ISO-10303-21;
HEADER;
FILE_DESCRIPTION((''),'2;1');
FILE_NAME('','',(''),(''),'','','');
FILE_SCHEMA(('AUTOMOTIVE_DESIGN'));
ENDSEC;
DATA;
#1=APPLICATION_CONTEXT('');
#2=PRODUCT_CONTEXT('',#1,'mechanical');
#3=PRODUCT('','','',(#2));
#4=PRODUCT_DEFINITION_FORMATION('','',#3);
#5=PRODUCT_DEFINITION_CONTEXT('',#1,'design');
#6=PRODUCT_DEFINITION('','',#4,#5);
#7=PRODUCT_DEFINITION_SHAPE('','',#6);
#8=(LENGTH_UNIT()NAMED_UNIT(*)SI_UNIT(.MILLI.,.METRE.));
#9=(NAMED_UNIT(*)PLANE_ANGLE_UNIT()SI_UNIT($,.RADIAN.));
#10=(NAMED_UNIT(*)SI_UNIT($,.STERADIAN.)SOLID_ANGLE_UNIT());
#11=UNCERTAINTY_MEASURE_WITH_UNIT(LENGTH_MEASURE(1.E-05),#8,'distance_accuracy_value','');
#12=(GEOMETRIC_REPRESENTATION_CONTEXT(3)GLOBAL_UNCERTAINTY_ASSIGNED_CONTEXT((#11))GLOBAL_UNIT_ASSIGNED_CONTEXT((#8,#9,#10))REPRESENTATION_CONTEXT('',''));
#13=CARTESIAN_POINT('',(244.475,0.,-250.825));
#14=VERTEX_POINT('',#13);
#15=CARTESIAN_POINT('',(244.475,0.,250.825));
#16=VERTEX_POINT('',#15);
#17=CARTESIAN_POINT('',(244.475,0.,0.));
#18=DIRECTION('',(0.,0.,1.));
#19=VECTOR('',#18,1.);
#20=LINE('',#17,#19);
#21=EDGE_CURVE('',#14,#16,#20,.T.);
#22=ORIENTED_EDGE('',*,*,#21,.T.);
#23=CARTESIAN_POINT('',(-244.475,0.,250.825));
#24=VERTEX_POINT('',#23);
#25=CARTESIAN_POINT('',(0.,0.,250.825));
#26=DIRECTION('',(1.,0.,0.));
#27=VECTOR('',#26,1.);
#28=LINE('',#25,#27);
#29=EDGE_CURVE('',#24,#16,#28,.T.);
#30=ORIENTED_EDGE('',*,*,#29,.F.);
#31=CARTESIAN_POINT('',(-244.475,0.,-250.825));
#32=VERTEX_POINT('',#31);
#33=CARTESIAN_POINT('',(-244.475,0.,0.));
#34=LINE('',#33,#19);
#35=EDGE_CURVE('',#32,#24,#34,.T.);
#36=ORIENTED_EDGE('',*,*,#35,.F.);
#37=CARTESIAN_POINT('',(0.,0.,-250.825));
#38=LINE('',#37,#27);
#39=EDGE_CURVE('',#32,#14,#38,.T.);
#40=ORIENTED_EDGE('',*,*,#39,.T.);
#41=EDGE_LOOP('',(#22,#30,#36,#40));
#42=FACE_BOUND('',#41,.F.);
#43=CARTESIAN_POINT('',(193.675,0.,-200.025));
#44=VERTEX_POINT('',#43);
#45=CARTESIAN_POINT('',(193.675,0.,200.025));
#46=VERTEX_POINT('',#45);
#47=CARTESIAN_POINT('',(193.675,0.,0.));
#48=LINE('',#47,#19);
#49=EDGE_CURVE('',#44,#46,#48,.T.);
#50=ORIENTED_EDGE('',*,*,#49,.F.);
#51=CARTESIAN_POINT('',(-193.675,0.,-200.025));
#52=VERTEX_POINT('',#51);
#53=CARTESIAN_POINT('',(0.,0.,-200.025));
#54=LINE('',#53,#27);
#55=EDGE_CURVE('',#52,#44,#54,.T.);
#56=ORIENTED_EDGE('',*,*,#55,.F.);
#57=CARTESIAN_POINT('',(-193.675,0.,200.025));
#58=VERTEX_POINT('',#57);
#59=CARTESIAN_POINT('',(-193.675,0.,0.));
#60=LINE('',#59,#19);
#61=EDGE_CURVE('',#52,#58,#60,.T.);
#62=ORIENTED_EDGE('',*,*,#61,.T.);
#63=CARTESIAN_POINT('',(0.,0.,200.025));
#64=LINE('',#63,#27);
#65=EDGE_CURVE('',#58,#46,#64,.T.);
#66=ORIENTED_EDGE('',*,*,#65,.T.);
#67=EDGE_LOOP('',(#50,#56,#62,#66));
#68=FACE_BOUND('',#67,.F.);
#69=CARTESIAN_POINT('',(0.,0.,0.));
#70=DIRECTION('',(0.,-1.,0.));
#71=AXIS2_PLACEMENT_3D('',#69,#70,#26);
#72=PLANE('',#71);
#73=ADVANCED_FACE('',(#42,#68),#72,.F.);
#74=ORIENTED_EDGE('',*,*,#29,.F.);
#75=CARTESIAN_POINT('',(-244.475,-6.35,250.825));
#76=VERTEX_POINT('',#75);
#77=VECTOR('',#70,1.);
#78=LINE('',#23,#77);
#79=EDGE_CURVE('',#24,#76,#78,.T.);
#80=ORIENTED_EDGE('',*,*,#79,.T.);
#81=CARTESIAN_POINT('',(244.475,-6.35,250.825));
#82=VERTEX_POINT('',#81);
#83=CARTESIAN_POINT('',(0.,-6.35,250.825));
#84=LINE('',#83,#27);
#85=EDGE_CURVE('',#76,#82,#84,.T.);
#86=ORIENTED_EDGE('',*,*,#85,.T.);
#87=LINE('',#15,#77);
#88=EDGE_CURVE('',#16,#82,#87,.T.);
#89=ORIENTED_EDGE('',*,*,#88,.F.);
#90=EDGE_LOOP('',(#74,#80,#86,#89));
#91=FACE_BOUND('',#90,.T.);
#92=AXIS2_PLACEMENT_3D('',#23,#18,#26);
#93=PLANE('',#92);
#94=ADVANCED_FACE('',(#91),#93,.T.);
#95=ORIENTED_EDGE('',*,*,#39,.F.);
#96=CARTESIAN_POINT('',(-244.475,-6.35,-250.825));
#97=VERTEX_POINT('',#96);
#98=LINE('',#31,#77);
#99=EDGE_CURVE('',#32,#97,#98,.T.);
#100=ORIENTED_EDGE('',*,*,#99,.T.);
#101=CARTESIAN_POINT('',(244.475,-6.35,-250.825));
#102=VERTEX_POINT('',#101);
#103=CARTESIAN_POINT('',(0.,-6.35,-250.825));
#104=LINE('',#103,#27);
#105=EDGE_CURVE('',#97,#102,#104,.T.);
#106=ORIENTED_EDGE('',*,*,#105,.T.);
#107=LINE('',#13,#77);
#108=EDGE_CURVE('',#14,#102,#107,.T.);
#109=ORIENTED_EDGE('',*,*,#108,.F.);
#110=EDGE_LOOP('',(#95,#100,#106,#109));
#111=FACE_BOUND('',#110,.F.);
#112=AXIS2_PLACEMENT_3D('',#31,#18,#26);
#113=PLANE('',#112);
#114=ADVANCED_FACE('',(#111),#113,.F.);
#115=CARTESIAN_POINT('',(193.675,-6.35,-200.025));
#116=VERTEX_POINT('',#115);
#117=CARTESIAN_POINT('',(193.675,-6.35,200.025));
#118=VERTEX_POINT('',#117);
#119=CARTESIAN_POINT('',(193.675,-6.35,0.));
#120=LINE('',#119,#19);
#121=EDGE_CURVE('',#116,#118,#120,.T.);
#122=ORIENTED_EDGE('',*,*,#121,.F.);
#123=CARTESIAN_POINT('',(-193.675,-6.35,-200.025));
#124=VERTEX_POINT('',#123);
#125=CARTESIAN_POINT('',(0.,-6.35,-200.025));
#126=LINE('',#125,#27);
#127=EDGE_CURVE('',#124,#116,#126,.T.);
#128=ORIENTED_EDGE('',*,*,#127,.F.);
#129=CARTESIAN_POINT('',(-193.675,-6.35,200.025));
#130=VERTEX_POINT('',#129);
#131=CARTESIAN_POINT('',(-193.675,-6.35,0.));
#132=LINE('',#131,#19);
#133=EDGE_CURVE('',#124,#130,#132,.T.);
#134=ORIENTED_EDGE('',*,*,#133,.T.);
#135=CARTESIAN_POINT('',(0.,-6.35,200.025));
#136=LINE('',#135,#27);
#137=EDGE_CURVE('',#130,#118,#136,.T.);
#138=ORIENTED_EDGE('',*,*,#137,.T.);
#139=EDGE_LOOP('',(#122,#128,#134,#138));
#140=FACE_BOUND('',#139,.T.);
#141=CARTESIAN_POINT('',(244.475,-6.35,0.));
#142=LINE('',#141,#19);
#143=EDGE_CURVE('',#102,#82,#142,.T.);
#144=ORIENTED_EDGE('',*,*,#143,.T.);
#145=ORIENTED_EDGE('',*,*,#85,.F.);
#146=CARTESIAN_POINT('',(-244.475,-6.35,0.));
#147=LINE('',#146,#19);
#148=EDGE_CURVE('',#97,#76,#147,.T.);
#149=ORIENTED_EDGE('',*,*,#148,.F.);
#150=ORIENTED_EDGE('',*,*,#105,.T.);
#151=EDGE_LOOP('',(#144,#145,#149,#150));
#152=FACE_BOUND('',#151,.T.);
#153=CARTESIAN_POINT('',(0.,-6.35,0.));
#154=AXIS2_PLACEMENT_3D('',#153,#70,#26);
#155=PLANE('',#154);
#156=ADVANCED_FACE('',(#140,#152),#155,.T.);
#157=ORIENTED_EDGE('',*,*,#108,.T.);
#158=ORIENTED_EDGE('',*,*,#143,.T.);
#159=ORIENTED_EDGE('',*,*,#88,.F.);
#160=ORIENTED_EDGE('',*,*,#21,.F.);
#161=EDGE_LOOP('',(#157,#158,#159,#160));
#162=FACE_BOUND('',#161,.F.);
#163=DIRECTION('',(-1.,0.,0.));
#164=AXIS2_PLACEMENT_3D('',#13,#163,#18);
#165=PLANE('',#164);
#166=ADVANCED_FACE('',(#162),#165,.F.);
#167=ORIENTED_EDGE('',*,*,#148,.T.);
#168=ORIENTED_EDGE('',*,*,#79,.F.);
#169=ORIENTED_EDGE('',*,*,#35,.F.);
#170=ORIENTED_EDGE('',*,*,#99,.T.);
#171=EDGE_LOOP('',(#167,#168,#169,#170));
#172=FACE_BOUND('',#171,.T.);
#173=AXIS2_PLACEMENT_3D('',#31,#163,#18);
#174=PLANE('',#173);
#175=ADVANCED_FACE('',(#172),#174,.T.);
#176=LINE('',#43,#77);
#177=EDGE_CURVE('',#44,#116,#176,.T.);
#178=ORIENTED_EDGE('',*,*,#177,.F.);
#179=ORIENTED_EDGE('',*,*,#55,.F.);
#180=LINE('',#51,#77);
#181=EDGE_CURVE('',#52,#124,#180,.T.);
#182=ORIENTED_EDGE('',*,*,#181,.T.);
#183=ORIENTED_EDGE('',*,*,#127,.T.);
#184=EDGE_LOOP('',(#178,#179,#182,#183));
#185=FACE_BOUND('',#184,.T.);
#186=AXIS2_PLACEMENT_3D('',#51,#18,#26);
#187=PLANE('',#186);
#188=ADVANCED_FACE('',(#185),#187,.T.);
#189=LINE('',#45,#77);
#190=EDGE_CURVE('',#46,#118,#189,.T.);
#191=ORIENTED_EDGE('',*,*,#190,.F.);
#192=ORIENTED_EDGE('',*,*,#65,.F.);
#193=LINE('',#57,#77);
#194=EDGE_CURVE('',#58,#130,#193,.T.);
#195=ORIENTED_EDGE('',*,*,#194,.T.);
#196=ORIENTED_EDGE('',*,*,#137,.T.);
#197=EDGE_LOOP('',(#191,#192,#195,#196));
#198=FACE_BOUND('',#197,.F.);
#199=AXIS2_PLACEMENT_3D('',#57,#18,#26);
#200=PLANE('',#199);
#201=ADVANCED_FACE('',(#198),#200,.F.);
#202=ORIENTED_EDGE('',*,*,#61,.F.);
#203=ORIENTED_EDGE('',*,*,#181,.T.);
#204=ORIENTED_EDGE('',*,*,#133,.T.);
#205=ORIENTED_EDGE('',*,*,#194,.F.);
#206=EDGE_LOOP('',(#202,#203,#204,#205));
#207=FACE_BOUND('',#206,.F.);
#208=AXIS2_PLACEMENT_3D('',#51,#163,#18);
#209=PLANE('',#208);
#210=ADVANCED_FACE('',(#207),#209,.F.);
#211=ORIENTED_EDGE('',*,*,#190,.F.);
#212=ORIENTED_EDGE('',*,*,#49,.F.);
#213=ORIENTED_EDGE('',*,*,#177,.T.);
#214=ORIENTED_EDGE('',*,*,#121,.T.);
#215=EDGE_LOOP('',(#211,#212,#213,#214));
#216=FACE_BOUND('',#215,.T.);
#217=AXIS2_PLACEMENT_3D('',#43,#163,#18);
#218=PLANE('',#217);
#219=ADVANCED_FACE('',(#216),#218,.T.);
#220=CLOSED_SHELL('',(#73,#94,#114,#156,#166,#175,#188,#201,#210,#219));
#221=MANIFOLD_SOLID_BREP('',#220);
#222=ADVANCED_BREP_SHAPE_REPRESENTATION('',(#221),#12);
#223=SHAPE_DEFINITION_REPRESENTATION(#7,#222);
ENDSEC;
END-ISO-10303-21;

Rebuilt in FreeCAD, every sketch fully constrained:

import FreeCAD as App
import Part
import Sketcher

V = App.Vector
Q = App.Units.Quantity

doc = App.newDocument("Part")
body = doc.addObject("PartDesign::Body", "Body")

# Sketch on XZ plane
sketch1 = body.newObject("Sketcher::SketchObject", "Sketch")
sketch1.AttachmentSupport = (doc.getObject("XZ_Plane"), [""])
sketch1.MapMode = "FlatFace"
sketch1.addGeometry(Part.LineSegment(V(-244.475, 250.825, 0), V(-244.475, -250.825, 0)), False)
sketch1.addGeometry(Part.LineSegment(V(-244.475, -250.825, 0), V(244.475, -250.825, 0)), False)
sketch1.addGeometry(Part.LineSegment(V(244.475, -250.825, 0), V(244.475, 250.825, 0)), False)
sketch1.addGeometry(Part.LineSegment(V(244.475, 250.825, 0), V(-244.475, 250.825, 0)), False)
sketch1.addGeometry(Part.LineSegment(V(193.675, -200.025, 0), V(-193.675, -200.025, 0)), False)
sketch1.addGeometry(Part.LineSegment(V(-193.675, -200.025, 0), V(-193.675, 200.025, 0)), False)
sketch1.addGeometry(Part.LineSegment(V(-193.675, 200.025, 0), V(193.675, 200.025, 0)), False)
sketch1.addGeometry(Part.LineSegment(V(193.675, 200.025, 0), V(193.675, -200.025, 0)), False)
sketch1.addConstraint(Sketcher.Constraint("Coincident", 0, 2, 1, 1))
sketch1.addConstraint(Sketcher.Constraint("Coincident", 1, 2, 2, 1))
sketch1.addConstraint(Sketcher.Constraint("Coincident", 2, 2, 3, 1))
sketch1.addConstraint(Sketcher.Constraint("Coincident", 3, 2, 0, 1))
sketch1.addConstraint(Sketcher.Constraint("Coincident", 4, 2, 5, 1))
sketch1.addConstraint(Sketcher.Constraint("Coincident", 5, 2, 6, 1))
sketch1.addConstraint(Sketcher.Constraint("Coincident", 6, 2, 7, 1))
sketch1.addConstraint(Sketcher.Constraint("Coincident", 7, 2, 4, 1))
sketch1.addConstraint(Sketcher.Constraint("Vertical", 0))
sketch1.addConstraint(Sketcher.Constraint("Horizontal", 1))
sketch1.addConstraint(Sketcher.Constraint("Vertical", 2))
sketch1.addConstraint(Sketcher.Constraint("Horizontal", 3))
sketch1.addConstraint(Sketcher.Constraint("Horizontal", 4))
sketch1.addConstraint(Sketcher.Constraint("Vertical", 5))
sketch1.addConstraint(Sketcher.Constraint("Horizontal", 6))
sketch1.addConstraint(Sketcher.Constraint("Vertical", 7))
sketch1.addConstraint(Sketcher.Constraint("Symmetric", 0, 2, 2, 2, -1, 1))
sketch1.addConstraint(Sketcher.Constraint("Symmetric", 4, 2, 6, 2, -1, 1))
sketch1.addConstraint(Sketcher.Constraint("DistanceX", 0, 2, 4, 2, Q("2 in")))
sketch1.addConstraint(Sketcher.Constraint("DistanceY", 0, 2, 4, 2, Q("2 in")))
sketch1.addConstraint(Sketcher.Constraint("DistanceX", 1, 1, 1, 2, Q("19.25 in")))
sketch1.addConstraint(Sketcher.Constraint("DistanceY", 0, 2, 0, 1, Q("19.75 in")))
pad1 = body.newObject("PartDesign::Pad", "Pad")
pad1.Profile = sketch1
pad1.Length = Q("0.25 in")

doc.recompute()
